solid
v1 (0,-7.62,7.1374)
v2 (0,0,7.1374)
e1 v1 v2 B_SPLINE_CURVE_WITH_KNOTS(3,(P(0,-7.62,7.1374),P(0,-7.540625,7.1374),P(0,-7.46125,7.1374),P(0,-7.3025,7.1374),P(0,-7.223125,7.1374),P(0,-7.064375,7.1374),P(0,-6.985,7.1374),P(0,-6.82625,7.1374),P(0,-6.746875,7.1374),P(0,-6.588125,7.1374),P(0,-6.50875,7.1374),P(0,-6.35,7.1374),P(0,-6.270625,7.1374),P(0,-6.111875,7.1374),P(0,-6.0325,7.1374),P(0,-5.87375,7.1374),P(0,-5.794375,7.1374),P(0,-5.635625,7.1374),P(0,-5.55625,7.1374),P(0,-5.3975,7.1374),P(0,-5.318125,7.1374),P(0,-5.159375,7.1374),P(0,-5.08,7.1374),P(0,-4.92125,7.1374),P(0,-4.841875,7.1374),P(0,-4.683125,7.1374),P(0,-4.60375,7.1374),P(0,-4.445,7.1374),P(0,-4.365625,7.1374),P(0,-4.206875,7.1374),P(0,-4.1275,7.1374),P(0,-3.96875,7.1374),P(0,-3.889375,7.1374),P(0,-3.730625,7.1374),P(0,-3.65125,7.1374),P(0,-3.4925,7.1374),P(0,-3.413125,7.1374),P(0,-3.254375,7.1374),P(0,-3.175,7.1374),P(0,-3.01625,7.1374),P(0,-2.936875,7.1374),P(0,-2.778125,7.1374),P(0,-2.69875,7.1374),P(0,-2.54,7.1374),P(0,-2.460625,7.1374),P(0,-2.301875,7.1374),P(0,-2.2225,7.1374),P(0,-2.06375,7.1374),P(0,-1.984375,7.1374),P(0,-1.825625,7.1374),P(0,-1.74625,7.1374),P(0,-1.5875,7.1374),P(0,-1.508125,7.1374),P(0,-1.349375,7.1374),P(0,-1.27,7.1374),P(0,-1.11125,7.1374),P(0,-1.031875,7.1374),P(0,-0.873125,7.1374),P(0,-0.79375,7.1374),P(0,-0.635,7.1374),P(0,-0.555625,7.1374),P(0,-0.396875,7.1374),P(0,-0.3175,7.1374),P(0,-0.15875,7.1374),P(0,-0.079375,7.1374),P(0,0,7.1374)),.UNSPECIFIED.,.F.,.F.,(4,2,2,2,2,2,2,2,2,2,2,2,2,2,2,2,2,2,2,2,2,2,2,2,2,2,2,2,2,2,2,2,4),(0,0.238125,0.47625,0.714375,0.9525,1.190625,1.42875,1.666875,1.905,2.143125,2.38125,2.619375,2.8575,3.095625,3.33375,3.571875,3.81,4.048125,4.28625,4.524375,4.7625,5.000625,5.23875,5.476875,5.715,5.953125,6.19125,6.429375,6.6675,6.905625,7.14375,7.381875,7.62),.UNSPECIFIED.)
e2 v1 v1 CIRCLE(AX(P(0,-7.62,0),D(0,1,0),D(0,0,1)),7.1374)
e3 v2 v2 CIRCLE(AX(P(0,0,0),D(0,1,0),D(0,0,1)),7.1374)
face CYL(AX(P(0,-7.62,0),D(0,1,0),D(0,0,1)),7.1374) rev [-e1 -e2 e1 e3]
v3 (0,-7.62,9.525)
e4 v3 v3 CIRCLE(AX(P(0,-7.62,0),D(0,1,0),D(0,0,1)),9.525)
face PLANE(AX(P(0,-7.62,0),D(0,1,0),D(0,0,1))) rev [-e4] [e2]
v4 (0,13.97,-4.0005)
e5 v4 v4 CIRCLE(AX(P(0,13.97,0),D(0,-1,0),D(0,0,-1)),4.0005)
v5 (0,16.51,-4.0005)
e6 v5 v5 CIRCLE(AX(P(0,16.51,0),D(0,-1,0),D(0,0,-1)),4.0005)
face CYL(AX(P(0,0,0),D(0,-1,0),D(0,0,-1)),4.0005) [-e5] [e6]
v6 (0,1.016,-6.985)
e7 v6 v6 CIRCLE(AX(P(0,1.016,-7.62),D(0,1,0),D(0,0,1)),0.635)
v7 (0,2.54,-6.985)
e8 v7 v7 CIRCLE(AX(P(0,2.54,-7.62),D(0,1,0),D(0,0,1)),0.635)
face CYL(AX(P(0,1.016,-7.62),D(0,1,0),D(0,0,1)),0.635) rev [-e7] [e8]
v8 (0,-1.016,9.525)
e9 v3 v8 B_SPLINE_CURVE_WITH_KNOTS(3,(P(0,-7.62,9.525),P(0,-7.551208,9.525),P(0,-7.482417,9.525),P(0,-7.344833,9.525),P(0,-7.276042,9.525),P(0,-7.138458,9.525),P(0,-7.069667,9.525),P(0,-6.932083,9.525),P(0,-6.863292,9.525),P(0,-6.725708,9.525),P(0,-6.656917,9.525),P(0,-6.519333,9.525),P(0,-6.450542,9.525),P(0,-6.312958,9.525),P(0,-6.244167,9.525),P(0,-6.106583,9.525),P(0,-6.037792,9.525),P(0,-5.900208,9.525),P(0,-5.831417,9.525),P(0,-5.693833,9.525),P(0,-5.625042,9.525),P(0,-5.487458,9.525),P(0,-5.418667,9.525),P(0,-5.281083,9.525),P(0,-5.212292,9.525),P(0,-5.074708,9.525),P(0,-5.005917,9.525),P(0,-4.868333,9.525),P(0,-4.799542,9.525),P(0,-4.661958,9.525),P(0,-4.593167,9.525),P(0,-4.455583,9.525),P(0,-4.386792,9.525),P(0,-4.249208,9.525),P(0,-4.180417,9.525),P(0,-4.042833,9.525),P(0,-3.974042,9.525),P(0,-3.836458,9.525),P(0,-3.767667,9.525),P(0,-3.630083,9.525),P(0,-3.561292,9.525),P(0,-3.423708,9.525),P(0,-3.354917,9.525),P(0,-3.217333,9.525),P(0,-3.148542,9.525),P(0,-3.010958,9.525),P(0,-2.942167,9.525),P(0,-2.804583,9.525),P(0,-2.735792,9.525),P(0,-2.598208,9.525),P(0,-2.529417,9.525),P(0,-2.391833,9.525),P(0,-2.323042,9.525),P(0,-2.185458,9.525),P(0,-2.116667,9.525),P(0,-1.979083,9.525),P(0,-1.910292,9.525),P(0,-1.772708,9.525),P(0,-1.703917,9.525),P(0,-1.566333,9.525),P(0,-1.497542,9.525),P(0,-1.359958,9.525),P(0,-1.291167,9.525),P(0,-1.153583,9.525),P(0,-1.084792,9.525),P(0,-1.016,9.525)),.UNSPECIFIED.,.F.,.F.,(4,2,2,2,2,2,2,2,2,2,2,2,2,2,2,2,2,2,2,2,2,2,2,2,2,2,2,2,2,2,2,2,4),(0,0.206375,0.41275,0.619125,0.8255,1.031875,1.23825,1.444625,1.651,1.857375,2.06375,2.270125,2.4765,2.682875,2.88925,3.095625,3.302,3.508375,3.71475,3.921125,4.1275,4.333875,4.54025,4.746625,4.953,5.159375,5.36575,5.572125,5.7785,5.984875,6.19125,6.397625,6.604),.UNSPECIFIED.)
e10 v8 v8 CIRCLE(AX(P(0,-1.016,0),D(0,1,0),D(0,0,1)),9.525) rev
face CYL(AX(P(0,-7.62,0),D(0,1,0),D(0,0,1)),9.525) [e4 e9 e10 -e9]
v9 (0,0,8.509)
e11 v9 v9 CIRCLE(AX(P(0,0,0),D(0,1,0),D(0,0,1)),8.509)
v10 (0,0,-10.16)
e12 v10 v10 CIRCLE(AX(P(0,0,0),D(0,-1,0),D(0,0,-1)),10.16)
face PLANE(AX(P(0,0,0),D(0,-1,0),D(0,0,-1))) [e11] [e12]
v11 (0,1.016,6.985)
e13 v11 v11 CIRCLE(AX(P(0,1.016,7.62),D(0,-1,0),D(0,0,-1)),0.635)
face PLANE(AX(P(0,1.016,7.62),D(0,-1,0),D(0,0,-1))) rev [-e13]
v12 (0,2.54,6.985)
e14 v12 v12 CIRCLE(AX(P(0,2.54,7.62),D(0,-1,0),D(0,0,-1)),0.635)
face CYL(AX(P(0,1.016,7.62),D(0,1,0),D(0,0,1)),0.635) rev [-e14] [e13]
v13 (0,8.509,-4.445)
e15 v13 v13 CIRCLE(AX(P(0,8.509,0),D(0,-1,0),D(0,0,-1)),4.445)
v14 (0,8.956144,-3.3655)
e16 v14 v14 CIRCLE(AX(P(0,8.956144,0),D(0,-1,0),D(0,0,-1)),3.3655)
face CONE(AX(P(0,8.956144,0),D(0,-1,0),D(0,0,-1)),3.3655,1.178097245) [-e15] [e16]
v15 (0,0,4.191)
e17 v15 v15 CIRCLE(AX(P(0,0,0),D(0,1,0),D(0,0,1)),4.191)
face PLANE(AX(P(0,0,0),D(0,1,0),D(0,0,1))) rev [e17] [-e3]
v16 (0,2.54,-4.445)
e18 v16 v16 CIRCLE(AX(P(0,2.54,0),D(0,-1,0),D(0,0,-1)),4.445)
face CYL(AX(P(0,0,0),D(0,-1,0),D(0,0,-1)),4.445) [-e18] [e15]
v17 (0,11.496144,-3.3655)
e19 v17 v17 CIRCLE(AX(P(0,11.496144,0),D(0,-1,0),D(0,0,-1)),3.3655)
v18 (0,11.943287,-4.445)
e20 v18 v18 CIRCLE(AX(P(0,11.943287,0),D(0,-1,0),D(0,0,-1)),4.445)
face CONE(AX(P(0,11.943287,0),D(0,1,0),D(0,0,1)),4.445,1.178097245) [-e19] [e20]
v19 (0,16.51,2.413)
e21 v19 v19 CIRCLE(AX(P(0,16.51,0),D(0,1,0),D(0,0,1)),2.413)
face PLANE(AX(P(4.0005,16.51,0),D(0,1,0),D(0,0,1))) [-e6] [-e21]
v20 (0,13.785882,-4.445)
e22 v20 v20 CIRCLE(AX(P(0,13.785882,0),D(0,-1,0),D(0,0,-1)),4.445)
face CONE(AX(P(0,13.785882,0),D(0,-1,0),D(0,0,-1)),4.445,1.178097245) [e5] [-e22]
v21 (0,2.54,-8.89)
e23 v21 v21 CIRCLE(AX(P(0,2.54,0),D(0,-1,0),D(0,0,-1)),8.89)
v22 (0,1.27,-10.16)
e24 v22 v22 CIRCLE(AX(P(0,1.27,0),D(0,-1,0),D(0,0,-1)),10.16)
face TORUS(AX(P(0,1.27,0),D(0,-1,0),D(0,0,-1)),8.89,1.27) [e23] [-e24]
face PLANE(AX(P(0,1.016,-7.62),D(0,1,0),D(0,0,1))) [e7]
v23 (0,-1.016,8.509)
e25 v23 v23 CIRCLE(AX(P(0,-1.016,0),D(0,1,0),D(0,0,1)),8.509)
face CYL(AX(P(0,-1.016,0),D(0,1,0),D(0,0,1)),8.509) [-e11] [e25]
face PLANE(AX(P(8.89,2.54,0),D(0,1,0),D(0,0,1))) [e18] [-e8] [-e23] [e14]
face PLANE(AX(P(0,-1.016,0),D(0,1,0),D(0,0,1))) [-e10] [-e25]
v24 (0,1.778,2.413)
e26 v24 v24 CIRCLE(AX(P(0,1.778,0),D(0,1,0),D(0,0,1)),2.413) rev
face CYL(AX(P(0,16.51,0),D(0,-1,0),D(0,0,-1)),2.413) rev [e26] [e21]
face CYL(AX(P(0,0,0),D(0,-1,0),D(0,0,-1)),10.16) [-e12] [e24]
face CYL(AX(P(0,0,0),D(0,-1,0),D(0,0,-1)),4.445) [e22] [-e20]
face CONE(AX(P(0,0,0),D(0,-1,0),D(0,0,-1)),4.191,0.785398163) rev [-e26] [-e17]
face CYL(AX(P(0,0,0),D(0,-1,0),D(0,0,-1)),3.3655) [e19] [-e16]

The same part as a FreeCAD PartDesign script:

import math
import FreeCAD as App
import Part
import Sketcher
from FreeCAD import Vector
Q = App.Units.Quantity


def edges_at(feature, points):
    """Names of the edges that pass closest to the given points."""
    edges = feature.Shape.Edges
    near = lambda p: min(range(len(edges)), key=lambda i: edges[i].distToShape(Part.Vertex(*p))[0])
    return sorted({f"Edge{near(p) + 1}" for p in points})

doc = App.newDocument("Part")
body = doc.addObject("PartDesign::Body", "Body")

# Sketch on XZ plane
sketch1 = body.newObject("Sketcher::SketchObject", "Sketch")
sketch1.AttachmentSupport = (doc.getObject("XZ_Plane"), [""])
sketch1.MapMode = "FlatFace"
sketch1.addGeometry(Part.Circle(Vector(0, 0, 0), Vector(0, 0, 1), 9.525), False)
sketch1.addConstraint(Sketcher.Constraint("Coincident", 0, 3, -1, 1))
sketch1.addConstraint(Sketcher.Constraint("Diameter", 0, Q("0.75 in")))
pad1 = body.newObject("PartDesign::Pad", "Pad")
pad1.Profile = sketch1
pad1.Length = Q("0.3 in")

# Sketch on XZ plane
sketch2 = body.newObject("Sketcher::SketchObject", "Sketch001")
sketch2.AttachmentSupport = (doc.getObject("XZ_Plane"), [""])
sketch2.MapMode = "FlatFace"
sketch2.addGeometry(Part.Circle(Vector(0, 0, 0), Vector(0, 0, 1), 9.779), False)
sketch2.addGeometry(Part.Circle(Vector(0, 0, 0), Vector(0, 0, 1), 8.509), False)
sketch2.addConstraint(Sketcher.Constraint("Coincident", 0, 3, -1, 1))
sketch2.addConstraint(Sketcher.Constraint("Coincident", 1, 3, -1, 1))
sketch2.addConstraint(Sketcher.Constraint("Diameter", 0, Q("0.77 in")))
sketch2.addConstraint(Sketcher.Constraint("Diameter", 1, Q("0.67 in")))
pocket1 = body.newObject("PartDesign::Pocket", "Pocket")
pocket1.Profile = sketch2
pocket1.Length = Q("0.04 in")
pocket1.Reversed = True

# Sketch on XY plane
sketch3 = body.newObject("Sketcher::SketchObject", "Sketch002")
sketch3.AttachmentSupport = (doc.getObject("XY_Plane"), [""])
sketch3.MapMode = "FlatFace"
sketch3.addGeometry(Part.LineSegment(Vector(0, 0, 0), Vector(10.16, 0, 0)), False)
sketch3.addGeometry(Part.LineSegment(Vector(10.16, 0, 0), Vector(10.16, 1.27, 0)), False)
sketch3.addGeometry(Part.ArcOfCircle(Part.Circle(Vector(8.89, 1.27, 0), Vector(0, 0, 1), 1.27), math.radians(0), math.radians(90)), False)
sketch3.addGeometry(Part.LineSegment(Vector(8.89, 2.54, 0), Vector(4.445, 2.54, 0)), False)
sketch3.addGeometry(Part.LineSegment(Vector(4.445, 2.54, 0), Vector(4.445, 8.509, 0)), False)
sketch3.addGeometry(Part.LineSegment(Vector(4.445, 8.509, 0), Vector(3.3655, 8.956144, 0)), False)
sketch3.addGeometry(Part.LineSegment(Vector(3.3655, 8.956144, 0), Vector(3.3655, 11.496144, 0)), False)
sketch3.addGeometry(Part.LineSegment(Vector(3.3655, 11.496144, 0), Vector(4.445, 11.943287, 0)), False)
sketch3.addGeometry(Part.LineSegment(Vector(4.445, 11.943287, 0), Vector(4.445, 13.785882, 0)), False)
sketch3.addGeometry(Part.LineSegment(Vector(4.445, 13.785882, 0), Vector(4.0005, 13.97, 0)), False)
sketch3.addGeometry(Part.LineSegment(Vector(4.0005, 13.97, 0), Vector(4.0005, 16.51, 0)), False)
sketch3.addGeometry(Part.LineSegment(Vector(4.0005, 16.51, 0), Vector(0, 16.51, 0)), False)
sketch3.addGeometry(Part.LineSegment(Vector(0, 16.51, 0), Vector(0, 0, 0)), False)
sketch3.addConstraint(Sketcher.Constraint("Coincident", 0, 2, 1, 1))
sketch3.addConstraint(Sketcher.Constraint("Tangent", 1, 2, 2, 1))
sketch3.addConstraint(Sketcher.Constraint("Tangent", 2, 2, 3, 1))
sketch3.addConstraint(Sketcher.Constraint("Coincident", 3, 2, 4, 1))
sketch3.addConstraint(Sketcher.Constraint("Coincident", 4, 2, 5, 1))
sketch3.addConstraint(Sketcher.Constraint("Coincident", 5, 2, 6, 1))
sketch3.addConstraint(Sketcher.Constraint("Coincident", 6, 2, 7, 1))
sketch3.addConstraint(Sketcher.Constraint("Coincident", 7, 2, 8, 1))
sketch3.addConstraint(Sketcher.Constraint("Coincident", 8, 2, 9, 1))
sketch3.addConstraint(Sketcher.Constraint("Coincident", 9, 2, 10, 1))
sketch3.addConstraint(Sketcher.Constraint("Coincident", 10, 2, 11, 1))
sketch3.addConstraint(Sketcher.Constraint("Coincident", 11, 2, 12, 1))
sketch3.addConstraint(Sketcher.Constraint("Coincident", 12, 2, 0, 1))
sketch3.addConstraint(Sketcher.Constraint("Horizontal", 0))
sketch3.addConstraint(Sketcher.Constraint("Vertical", 1))
sketch3.addConstraint(Sketcher.Constraint("Horizontal", 3))
sketch3.addConstraint(Sketcher.Constraint("Vertical", 4))
sketch3.addConstraint(Sketcher.Constraint("Vertical", 6))
sketch3.addConstraint(Sketcher.Constraint("Vertical", 8))
sketch3.addConstraint(Sketcher.Constraint("Vertical", 10))
sketch3.addConstraint(Sketcher.Constraint("Horizontal", 11))
sketch3.addConstraint(Sketcher.Constraint("Vertical", 12))
sketch3.addConstraint(Sketcher.Constraint("Coincident", 12, 2, -1, 1))
sketch3.addConstraint(Sketcher.Constraint("Parallel", 5, 9))
sketch3.addConstraint(Sketcher.Constraint("Vertical", 4, 2, 7, 2))
sketch3.addConstraint(Sketcher.Constraint("Equal", 6, 10))
sketch3.addConstraint(Sketcher.Constraint("Equal", 5, 7))
sketch3.addConstraint(Sketcher.Constraint("Radius", 2, Q("0.05 in")))
sketch3.addConstraint(Sketcher.Constraint("DistanceX", 0, 1, 0, 2, Q("0.4 in")))
sketch3.addConstraint(Sketcher.Constraint("DistanceY", 6, 1, 6, 2, Q("0.1 in")))
sketch3.addConstraint(Sketcher.Constraint("DistanceY", 1, 1, 1, 2, Q("0.05 in")))
sketch3.addConstraint(Sketcher.Constraint("DistanceY", 12, 2, 12, 1, Q("0.65 in")))
sketch3.addConstraint(Sketcher.Constraint("Angle", 5, Q("157.5 deg")))
sketch3.addConstraint(Sketcher.Constraint("DistanceX", 3, 2, 3, 1, Q("0.175 in")))
sketch3.addConstraint(Sketcher.Constraint("DistanceY", 4, 1, 4, 2, Q("0.235 in")))
sketch3.addConstraint(Sketcher.Constraint("DistanceX", 11, 2, 11, 1, Q("0.1575 in")))
sketch3.addConstraint(Sketcher.Constraint("DistanceX", 6, 2, 9, 2, Q("0.025 in")))
revolution = body.newObject("PartDesign::Revolution", "Revolution")
revolution.Profile = sketch3
revolution.ReferenceAxis = (sketch3, ["V_Axis"])
revolution.Angle = 360

# Sketch on XZ plane
sketch4 = body.newObject("Sketcher::SketchObject", "Sketch003")
sketch4.AttachmentSupport = (doc.getObject("XZ_Plane"), [""])
sketch4.MapMode = "FlatFace"
sketch4.addGeometry(Part.Circle(Vector(0, 0, 0), Vector(0, 0, 1), 7.1374), False)
sketch4.addConstraint(Sketcher.Constraint("Coincident", 0, 3, -1, 1))
sketch4.addConstraint(Sketcher.Constraint("Diameter", 0, Q("0.562 in")))
pocket2 = body.newObject("PartDesign::Pocket", "Pocket001")
pocket2.Profile = sketch4
pocket2.Type = "ThroughAll"
pocket2.Reversed = True

# Sketch on XZ plane
sketch5 = body.newObject("Sketcher::SketchObject", "Sketch004")
sketch5.AttachmentSupport = (doc.getObject("XZ_Plane"), [""])
sketch5.MapMode = "FlatFace"
sketch5.addGeometry(Part.Circle(Vector(0, 0, 0), Vector(0, 0, 1), 2.413), False)
sketch5.addConstraint(Sketcher.Constraint("Coincident", 0, 3, -1, 1))
sketch5.addConstraint(Sketcher.Constraint("Diameter", 0, Q("0.19 in")))
pocket3 = body.newObject("PartDesign::Pocket", "Pocket002")
pocket3.Profile = sketch5
pocket3.Type = "ThroughAll"
doc.recompute()

chamfer = body.newObject("PartDesign::Chamfer", "Chamfer")
chamfer.Base = (pocket3, edges_at(pocket3, [(0, 0, -2.413)]))
chamfer.Size = Q("0.07 in")

# Sketch on XZ plane
sketch6 = body.newObject("Sketcher::SketchObject", "Sketch005")
sketch6.AttachmentSupport = (doc.getObject("XZ_Plane"), [""])
sketch6.MapMode = "FlatFace"
sketch6.AttachmentOffset = App.Placement(Vector(0, 0, -0.1 * 25.4), App.Rotation())
sketch6.addGeometry(Part.Circle(Vector(0, -7.62, 0), Vector(0, 0, 1), 0.635), False)
sketch6.addGeometry(Part.Circle(Vector(0, 7.62, 0), Vector(0, 0, 1), 0.635), False)
sketch6.addConstraint(Sketcher.Constraint("Equal", 0, 1))
sketch6.addConstraint(Sketcher.Constraint("Symmetric", 0, 3, 1, 3, -1, 1))
sketch6.addConstraint(Sketcher.Constraint("PointOnObject", 0, 3, -2))
sketch6.addConstraint(Sketcher.Constraint("Diameter", 0, Q("0.05 in")))
sketch6.addConstraint(Sketcher.Constraint("DistanceY", 0, 3, -1, 1, Q("0.3 in")))
pocket4 = body.newObject("PartDesign::Pocket", "Pocket003")
pocket4.Profile = sketch6
pocket4.Length = Q("0.06 in")
pocket4.Reversed = True

doc.recompute()
